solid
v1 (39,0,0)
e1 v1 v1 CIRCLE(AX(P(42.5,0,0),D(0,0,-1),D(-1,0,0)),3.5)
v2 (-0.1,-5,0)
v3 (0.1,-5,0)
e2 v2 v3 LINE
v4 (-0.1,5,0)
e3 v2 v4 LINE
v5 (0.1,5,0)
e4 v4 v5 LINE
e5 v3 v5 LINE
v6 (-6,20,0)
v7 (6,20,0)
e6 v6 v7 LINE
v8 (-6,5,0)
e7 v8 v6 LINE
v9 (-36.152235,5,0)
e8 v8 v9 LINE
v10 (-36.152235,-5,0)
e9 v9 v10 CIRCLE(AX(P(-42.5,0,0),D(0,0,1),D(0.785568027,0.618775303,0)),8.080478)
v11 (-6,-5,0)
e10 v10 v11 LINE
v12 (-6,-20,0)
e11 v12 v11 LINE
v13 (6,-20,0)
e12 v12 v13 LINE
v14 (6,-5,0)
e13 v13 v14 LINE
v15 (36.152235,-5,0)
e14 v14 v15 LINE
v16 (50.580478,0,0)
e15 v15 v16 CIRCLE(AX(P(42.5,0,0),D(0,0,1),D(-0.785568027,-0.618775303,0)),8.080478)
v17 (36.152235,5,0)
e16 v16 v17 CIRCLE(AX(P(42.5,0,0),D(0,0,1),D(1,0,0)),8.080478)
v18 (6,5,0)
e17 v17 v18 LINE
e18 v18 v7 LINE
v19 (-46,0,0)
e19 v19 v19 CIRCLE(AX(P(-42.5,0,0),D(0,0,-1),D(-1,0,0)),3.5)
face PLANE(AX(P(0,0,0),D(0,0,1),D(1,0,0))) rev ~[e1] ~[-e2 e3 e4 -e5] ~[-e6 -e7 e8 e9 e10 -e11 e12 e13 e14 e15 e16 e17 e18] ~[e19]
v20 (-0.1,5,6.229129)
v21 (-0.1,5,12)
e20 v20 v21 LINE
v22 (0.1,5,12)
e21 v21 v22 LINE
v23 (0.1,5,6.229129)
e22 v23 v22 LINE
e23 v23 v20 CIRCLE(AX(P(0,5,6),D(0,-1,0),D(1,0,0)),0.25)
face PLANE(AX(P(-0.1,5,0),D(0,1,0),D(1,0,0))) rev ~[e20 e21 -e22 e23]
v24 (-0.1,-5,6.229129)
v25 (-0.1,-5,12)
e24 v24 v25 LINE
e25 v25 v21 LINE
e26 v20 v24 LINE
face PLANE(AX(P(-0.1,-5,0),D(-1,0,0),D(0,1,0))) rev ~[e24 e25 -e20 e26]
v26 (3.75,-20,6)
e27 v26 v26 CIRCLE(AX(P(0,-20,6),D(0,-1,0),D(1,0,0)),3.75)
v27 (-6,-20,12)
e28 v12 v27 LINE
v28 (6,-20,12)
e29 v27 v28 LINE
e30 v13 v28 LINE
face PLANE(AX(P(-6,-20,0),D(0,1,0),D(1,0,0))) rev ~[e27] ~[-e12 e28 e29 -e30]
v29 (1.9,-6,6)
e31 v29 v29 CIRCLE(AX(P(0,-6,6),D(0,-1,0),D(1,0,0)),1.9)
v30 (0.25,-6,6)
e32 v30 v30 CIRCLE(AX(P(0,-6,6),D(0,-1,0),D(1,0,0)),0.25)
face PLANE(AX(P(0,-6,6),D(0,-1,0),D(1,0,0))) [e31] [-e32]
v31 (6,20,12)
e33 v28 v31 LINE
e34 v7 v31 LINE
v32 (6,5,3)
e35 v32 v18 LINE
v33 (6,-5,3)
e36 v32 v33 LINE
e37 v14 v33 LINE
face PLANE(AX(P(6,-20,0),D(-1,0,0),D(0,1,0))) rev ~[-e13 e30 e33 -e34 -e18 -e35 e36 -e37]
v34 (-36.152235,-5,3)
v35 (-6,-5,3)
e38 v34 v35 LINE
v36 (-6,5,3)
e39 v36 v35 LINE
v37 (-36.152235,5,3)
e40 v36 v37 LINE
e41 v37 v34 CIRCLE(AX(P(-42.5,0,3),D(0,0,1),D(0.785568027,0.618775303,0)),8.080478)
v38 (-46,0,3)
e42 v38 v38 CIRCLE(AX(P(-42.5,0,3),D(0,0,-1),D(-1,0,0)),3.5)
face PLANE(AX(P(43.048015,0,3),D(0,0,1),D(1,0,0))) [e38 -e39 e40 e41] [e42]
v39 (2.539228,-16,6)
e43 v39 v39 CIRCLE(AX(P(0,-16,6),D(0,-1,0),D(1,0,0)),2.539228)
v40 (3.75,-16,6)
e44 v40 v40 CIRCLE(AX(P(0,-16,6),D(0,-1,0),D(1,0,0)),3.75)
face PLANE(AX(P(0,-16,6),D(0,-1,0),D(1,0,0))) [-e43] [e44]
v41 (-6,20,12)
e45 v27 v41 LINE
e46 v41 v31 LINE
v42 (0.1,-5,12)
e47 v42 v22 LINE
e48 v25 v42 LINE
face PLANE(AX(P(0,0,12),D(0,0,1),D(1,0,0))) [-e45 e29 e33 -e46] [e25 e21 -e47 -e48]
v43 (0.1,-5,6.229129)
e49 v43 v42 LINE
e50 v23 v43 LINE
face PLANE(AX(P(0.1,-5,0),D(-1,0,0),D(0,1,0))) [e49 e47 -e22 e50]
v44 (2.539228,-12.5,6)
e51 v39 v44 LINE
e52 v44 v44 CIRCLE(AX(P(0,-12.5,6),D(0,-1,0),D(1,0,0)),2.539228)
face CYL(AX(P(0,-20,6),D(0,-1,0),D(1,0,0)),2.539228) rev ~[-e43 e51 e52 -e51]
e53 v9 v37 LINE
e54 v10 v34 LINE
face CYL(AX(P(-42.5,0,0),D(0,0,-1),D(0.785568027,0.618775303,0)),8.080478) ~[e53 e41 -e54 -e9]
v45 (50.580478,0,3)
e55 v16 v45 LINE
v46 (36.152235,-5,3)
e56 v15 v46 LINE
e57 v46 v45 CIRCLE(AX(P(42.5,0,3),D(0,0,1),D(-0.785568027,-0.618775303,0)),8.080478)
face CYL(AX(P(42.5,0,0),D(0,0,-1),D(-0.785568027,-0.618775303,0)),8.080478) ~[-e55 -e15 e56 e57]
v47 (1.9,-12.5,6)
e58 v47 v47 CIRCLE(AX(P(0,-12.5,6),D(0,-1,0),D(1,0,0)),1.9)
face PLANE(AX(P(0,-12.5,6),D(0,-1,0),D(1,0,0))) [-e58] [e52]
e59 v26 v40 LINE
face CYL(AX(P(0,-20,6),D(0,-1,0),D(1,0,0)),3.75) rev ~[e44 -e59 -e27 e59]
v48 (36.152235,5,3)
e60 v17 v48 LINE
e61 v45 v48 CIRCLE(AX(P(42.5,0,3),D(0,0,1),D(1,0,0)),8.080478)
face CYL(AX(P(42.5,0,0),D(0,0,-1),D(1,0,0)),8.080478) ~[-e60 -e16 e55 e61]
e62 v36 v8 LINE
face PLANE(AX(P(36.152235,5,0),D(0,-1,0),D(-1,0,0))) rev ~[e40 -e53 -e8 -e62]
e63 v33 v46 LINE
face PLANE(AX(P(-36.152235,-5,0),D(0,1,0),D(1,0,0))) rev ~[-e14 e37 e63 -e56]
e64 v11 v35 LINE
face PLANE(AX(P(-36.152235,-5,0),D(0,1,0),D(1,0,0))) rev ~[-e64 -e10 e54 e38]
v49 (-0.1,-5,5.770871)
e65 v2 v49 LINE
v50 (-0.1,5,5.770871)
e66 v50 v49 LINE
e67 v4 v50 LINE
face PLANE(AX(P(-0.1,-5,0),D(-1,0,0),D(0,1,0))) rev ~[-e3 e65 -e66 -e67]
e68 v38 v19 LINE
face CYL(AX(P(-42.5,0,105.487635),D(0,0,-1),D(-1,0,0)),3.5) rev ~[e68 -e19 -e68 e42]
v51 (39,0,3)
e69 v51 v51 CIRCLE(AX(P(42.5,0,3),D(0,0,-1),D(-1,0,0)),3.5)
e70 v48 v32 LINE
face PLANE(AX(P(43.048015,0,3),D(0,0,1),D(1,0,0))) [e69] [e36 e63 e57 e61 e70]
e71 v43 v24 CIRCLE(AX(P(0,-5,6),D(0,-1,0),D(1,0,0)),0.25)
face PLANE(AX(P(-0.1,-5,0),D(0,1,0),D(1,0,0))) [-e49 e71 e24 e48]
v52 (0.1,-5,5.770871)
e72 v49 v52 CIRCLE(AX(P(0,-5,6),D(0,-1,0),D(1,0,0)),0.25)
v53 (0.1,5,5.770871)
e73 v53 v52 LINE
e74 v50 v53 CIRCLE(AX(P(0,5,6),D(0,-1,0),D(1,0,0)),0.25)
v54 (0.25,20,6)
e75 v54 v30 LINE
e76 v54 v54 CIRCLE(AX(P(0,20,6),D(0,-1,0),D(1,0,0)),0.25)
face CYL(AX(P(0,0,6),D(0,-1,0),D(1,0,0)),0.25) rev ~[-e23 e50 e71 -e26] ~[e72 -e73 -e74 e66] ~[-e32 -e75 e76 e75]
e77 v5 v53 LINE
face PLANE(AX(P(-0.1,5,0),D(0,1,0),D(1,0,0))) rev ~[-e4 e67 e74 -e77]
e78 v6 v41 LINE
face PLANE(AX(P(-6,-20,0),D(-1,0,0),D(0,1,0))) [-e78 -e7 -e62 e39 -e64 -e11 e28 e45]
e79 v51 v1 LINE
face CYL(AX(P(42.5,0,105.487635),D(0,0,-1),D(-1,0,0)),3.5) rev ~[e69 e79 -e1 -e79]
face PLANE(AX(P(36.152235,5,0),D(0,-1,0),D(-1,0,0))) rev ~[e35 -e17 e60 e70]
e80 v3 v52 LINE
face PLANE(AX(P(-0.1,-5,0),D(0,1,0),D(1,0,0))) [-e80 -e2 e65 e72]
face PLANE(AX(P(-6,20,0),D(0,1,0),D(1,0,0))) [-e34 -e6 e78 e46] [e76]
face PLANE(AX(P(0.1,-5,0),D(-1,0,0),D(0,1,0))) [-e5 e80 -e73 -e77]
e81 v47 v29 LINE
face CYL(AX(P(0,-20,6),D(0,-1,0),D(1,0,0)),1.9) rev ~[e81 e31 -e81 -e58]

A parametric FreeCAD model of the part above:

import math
import FreeCAD as App
import Part
import Sketcher

doc = App.newDocument("Part")
params = doc.addObject("Spreadsheet::Sheet", "Params")
for row, (alias, value) in enumerate([
    ("pad1_length", "3 mm"),
    ("sketch2_diameter", "7 mm"),
    ("hole_diameter", "7 mm"),
    ("sketch3_diameter", "0.4 mm"),
    ("pocket1_length", "25 mm"),
    ("sketch4_width", "12 mm"),
    ("sketch4_height", "40 mm"),
    ("pad2_length", "12 mm"),
    ("sketch5_height", "10 mm"),
    ("sketch5_width", "0.2 mm"),
    ("pocket2_length", "12 mm"),
    ("sketch6_diameter", "0.5 mm"),
    ("pocket3_length", "50 mm"),
    ("sketch7_diameter", "3.8 mm"),
    ("pocket4_length", "14 mm"),
    ("pocket5_length", "7.5 mm"),
    ("sketch9_diameter", "7.5 mm"),
    ("pocket6_length", "4 mm"),
], start=1):
    params.set(f"A{row}", alias)
    params.set(f"B{row}", "=" + value)
    params.setAlias(f"B{row}", alias)

body = doc.addObject("PartDesign::Body", "Body")

# Sketch on XY plane
sketch1 = body.newObject("Sketcher::SketchObject", "Sketch")
sketch1.AttachmentSupport = (doc.getObject("XY_Plane"), [""])
sketch1.MapMode = "FlatFace"
sketch1.addGeometry(Part.ArcOfCircle(Part.Circle(App.Vector(42, 0, 0), App.Vector(0, 0, 1), 8), math.radians(-142), math.radians(0)), False)
sketch1.addGeometry(Part.ArcOfCircle(Part.Circle(App.Vector(42, 0, 0), App.Vector(0, 0, 1), 8), math.radians(0), math.radians(142)), False)
sketch1.addGeometry(Part.LineSegment(App.Vector(36, 5, 0), App.Vector(-36, 5, 0)), False)
sketch1.addGeometry(Part.ArcOfCircle(Part.Circle(App.Vector(-42, 0, 0), App.Vector(0, 0, 1), 8), math.radians(38), math.radians(322)), False)
sketch1.addGeometry(Part.LineSegment(App.Vector(-36, -5, 0), App.Vector(36, -5, 0)), False)
sketch1.addConstraint(Sketcher.Constraint("Tangent", 0, 2, 1, 1))
sketch1.addConstraint(Sketcher.Constraint("Coincident", 1, 2, 2, 1))
sketch1.addConstraint(Sketcher.Constraint("Coincident", 2, 2, 3, 1))
sketch1.addConstraint(Sketcher.Constraint("Coincident", 3, 2, 4, 1))
sketch1.addConstraint(Sketcher.Constraint("Coincident", 4, 2, 0, 1))
sketch1.addConstraint(Sketcher.Constraint("Horizontal", 2))
sketch1.addConstraint(Sketcher.Constraint("Horizontal", 4))
sketch1.addConstraint(Sketcher.Constraint("Equal", 0, 1))
sketch1.addConstraint(Sketcher.Constraint("Equal", 1, 3))
sketch1.addConstraint(Sketcher.Constraint("Symmetric", 0, 3, 3, 3, -1, 1))
sketch1.addConstraint(Sketcher.Constraint("Symmetric", 2, 2, 3, 2, -1))
sketch1.addConstraint(Sketcher.Constraint("PointOnObject", 0, 2, -1))
sketch1.addConstraint(Sketcher.Constraint("DistanceY", -1, 1, 1, 2, 5.0))
sketch1.addConstraint(Sketcher.Constraint("DistanceX", 3, 3, 0, 3, 85.0))
sketch1.addConstraint(Sketcher.Constraint("Radius", 0, 8.080478))
pad1 = body.newObject("PartDesign::Pad", "Pad")
pad1.Profile = sketch1
pad1.setExpression("Length", "Params.pad1_length")

# Sketch on XY plane
sketch2 = body.newObject("Sketcher::SketchObject", "Sketch001")
sketch2.AttachmentSupport = (doc.getObject("XY_Plane"), [""])
sketch2.MapMode = "FlatFace"
sketch2.AttachmentOffset = App.Placement(App.Vector(0, 0, 3), App.Rotation())
sketch2.addGeometry(Part.Circle(App.Vector(-42.5, 0, 0), App.Vector(0, 0, 1), 3.5), False)
sketch2.addGeometry(Part.Circle(App.Vector(42.5, 0, 0), App.Vector(0, 0, 1), 3.5), False)
sketch2.addConstraint(Sketcher.Constraint("Equal", 0, 1))
sketch2.addConstraint(Sketcher.Constraint("Symmetric", 0, 3, 1, 3, -1, 1))
sketch2.addConstraint(Sketcher.Constraint("PointOnObject", 0, 3, -1))
sketch2.addConstraint(Sketcher.Constraint("Diameter", 0, 7.0))
sketch2.addConstraint(Sketcher.Constraint("DistanceX", 0, 3, 1, 3, 85.0))
sketch2.setExpression("Constraints[3]", "Params.sketch2_diameter")
doc.recompute()
hole = body.newObject("PartDesign::Hole", "Hole")
hole.Profile = sketch2
hole.ThreadType = "None"
hole.setExpression("Diameter", "Params.hole_diameter")
hole.DepthType = "ThroughAll"

# Sketch on XZ plane
sketch3 = body.newObject("Sketcher::SketchObject", "Sketch002")
sketch3.AttachmentSupport = (doc.getObject("XZ_Plane"), [""])
sketch3.MapMode = "FlatFace"
sketch3.addGeometry(Part.Circle(App.Vector(0, 21.1, 0), App.Vector(0, 0, 1), 0.2), False)
sketch3.addConstraint(Sketcher.Constraint("PointOnObject", 0, 3, -2))
sketch3.addConstraint(Sketcher.Constraint("Diameter", 0, 0.4))
sketch3.addConstraint(Sketcher.Constraint("DistanceY", -1, 1, 0, 3, 21.09967))
sketch3.setExpression("Constraints[1]", "Params.sketch3_diameter")
pocket1 = body.newObject("PartDesign::Pocket", "Pocket")
pocket1.Profile = sketch3
pocket1.setExpression("Length", "Params.pocket1_length")
pocket1.Midplane = True

# Sketch on XY plane
sketch4 = body.newObject("Sketcher::SketchObject", "Sketch003")
sketch4.AttachmentSupport = (doc.getObject("XY_Plane"), [""])
sketch4.MapMode = "FlatFace"
sketch4.addGeometry(Part.LineSegment(App.Vector(-6, 20, 0), App.Vector(-6, -20, 0)), False)
sketch4.addGeometry(Part.LineSegment(App.Vector(-6, -20, 0), App.Vector(6, -20, 0)), False)
sketch4.addGeometry(Part.LineSegment(App.Vector(6, -20, 0), App.Vector(6, 20, 0)), False)
sketch4.addGeometry(Part.LineSegment(App.Vector(6, 20, 0), App.Vector(-6, 20, 0)), False)
sketch4.addConstraint(Sketcher.Constraint("Coincident", 0, 2, 1, 1))
sketch4.addConstraint(Sketcher.Constraint("Coincident", 1, 2, 2, 1))
sketch4.addConstraint(Sketcher.Constraint("Coincident", 2, 2, 3, 1))
sketch4.addConstraint(Sketcher.Constraint("Coincident", 3, 2, 0, 1))
sketch4.addConstraint(Sketcher.Constraint("Vertical", 0))
sketch4.addConstraint(Sketcher.Constraint("Horizontal", 1))
sketch4.addConstraint(Sketcher.Constraint("Vertical", 2))
sketch4.addConstraint(Sketcher.Constraint("Horizontal", 3))
sketch4.addConstraint(Sketcher.Constraint("Symmetric", 0, 2, 2, 2, -1, 1))
sketch4.addConstraint(Sketcher.Constraint("DistanceX", 1, 1, 1, 2, 12.0))
sketch4.addConstraint(Sketcher.Constraint("DistanceY", 0, 2, 0, 1, 40.0))
sketch4.setExpression("Constraints[9]", "Params.sketch4_width")
sketch4.setExpression("Constraints[10]", "Params.sketch4_height")
pad2 = body.newObject("PartDesign::Pad", "Pad001")
pad2.Profile = sketch4
pad2.setExpression("Length", "Params.pad2_length")

# Sketch on XY plane
sketch5 = body.newObject("Sketcher::SketchObject", "Sketch004")
sketch5.AttachmentSupport = (doc.getObject("XY_Plane"), [""])
sketch5.MapMode = "FlatFace"
sketch5.addGeometry(Part.LineSegment(App.Vector(-0.1, 5, 0), App.Vector(-0.1, -5, 0)), False)
sketch5.addGeometry(Part.LineSegment(App.Vector(-0.1, -5, 0), App.Vector(0.1, -5, 0)), False)
sketch5.addGeometry(Part.LineSegment(App.Vector(0.1, -5, 0), App.Vector(0.1, 5, 0)), False)
sketch5.addGeometry(Part.LineSegment(App.Vector(0.1, 5, 0), App.Vector(-0.1, 5, 0)), False)
sketch5.addConstraint(Sketcher.Constraint("Coincident", 0, 2, 1, 1))
sketch5.addConstraint(Sketcher.Constraint("Coincident", 1, 2, 2, 1))
sketch5.addConstraint(Sketcher.Constraint("Coincident", 2, 2, 3, 1))
sketch5.addConstraint(Sketcher.Constraint("Coincident", 3, 2, 0, 1))
sketch5.addConstraint(Sketcher.Constraint("Vertical", 0))
sketch5.addConstraint(Sketcher.Constraint("Horizontal", 1))
sketch5.addConstraint(Sketcher.Constraint("Vertical", 2))
sketch5.addConstraint(Sketcher.Constraint("Horizontal", 3))
sketch5.addConstraint(Sketcher.Constraint("Symmetric", 0, 2, 2, 2, -1, 1))
sketch5.addConstraint(Sketcher.Constraint("DistanceY", 0, 2, 0, 1, 10.0))
sketch5.addConstraint(Sketcher.Constraint("DistanceX", 1, 1, 1, 2, 0.2))
sketch5.setExpression("Constraints[9]", "Params.sketch5_height")
sketch5.setExpression("Constraints[10]", "Params.sketch5_width")
pocket2 = body.newObject("PartDesign::Pocket", "Pocket001")
pocket2.Profile = sketch5
pocket2.setExpression("Length", "Params.pocket2_length")
pocket2.Reversed = True

# Sketch on XZ plane
sketch6 = body.newObject("Sketcher::SketchObject", "Sketch005")
sketch6.AttachmentSupport = (doc.getObject("XZ_Plane"), [""])
sketch6.MapMode = "FlatFace"
sketch6.addGeometry(Part.Circle(App.Vector(0, 6, 0), App.Vector(0, 0, 1), 0.25), False)
sketch6.addConstraint(Sketcher.Constraint("PointOnObject", 0, 3, -2))
sketch6.addConstraint(Sketcher.Constraint("Diameter", 0, 0.5))
sketch6.addConstraint(Sketcher.Constraint("DistanceY", -1, 1, 0, 3, 6.0))
sketch6.setExpression("Constraints[1]", "Params.sketch6_diameter")
pocket3 = body.newObject("PartDesign::Pocket", "Pocket002")
pocket3.Profile = sketch6
pocket3.setExpression("Length", "Params.pocket3_length")
pocket3.Midplane = True

# Sketch on XZ plane
sketch7 = body.newObject("Sketcher::SketchObject", "Sketch006")
sketch7.AttachmentSupport = (doc.getObject("XZ_Plane"), [""])
sketch7.MapMode = "FlatFace"
sketch7.AttachmentOffset = App.Placement(App.Vector(0, 0, 20), App.Rotation())
sketch7.addGeometry(Part.Circle(App.Vector(0, 6, 0), App.Vector(0, 0, 1), 1.9), False)
sketch7.addConstraint(Sketcher.Constraint("PointOnObject", 0, 3, -2))
sketch7.addConstraint(Sketcher.Constraint("Diameter", 0, 3.8))
sketch7.addConstraint(Sketcher.Constraint("DistanceY", -1, 1, 0, 3, 6.0))
sketch7.setExpression("Constraints[1]", "Params.sketch7_diameter")
pocket4 = body.newObject("PartDesign::Pocket", "Pocket003")
pocket4.Profile = sketch7
pocket4.setExpression("Length", "Params.pocket4_length")

# Sketch on XZ plane
sketch8 = body.newObject("Sketcher::SketchObject", "Sketch007")
sketch8.AttachmentSupport = (doc.getObject("XZ_Plane"), [""])
sketch8.MapMode = "FlatFace"
sketch8.AttachmentOffset = App.Placement(App.Vector(0, 0, 20), App.Rotation())
sketch8.addGeometry(Part.Circle(App.Vector(0, 6, 0), App.Vector(0, 0, 1), 2.5), False)
sketch8.addConstraint(Sketcher.Constraint("PointOnObject", 0, 3, -2))
sketch8.addConstraint(Sketcher.Constraint("DistanceY", -1, 1, 0, 3, 6.0))
sketch8.addConstraint(Sketcher.Constraint("Diameter", 0, 5.078457))
pocket5 = body.newObject("PartDesign::Pocket", "Pocket004")
pocket5.Profile = sketch8
pocket5.setExpression("Length", "Params.pocket5_length")

# Sketch on XZ plane
sketch9 = body.newObject("Sketcher::SketchObject", "Sketch008")
sketch9.AttachmentSupport = (doc.getObject("XZ_Plane"), [""])
sketch9.MapMode = "FlatFace"
sketch9.AttachmentOffset = App.Placement(App.Vector(0, 0, 20), App.Rotation())
sketch9.addGeometry(Part.Circle(App.Vector(0, 6, 0), App.Vector(0, 0, 1), 3.8), False)
sketch9.addConstraint(Sketcher.Constraint("PointOnObject", 0, 3, -2))
sketch9.addConstraint(Sketcher.Constraint("Diameter", 0, 7.5))
sketch9.addConstraint(Sketcher.Constraint("DistanceY", -1, 1, 0, 3, 6.0))
sketch9.setExpression("Constraints[1]", "Params.sketch9_diameter")
pocket6 = body.newObject("PartDesign::Pocket", "Pocket005")
pocket6.Profile = sketch9
pocket6.setExpression("Length", "Params.pocket6_length")

doc.recompute()
